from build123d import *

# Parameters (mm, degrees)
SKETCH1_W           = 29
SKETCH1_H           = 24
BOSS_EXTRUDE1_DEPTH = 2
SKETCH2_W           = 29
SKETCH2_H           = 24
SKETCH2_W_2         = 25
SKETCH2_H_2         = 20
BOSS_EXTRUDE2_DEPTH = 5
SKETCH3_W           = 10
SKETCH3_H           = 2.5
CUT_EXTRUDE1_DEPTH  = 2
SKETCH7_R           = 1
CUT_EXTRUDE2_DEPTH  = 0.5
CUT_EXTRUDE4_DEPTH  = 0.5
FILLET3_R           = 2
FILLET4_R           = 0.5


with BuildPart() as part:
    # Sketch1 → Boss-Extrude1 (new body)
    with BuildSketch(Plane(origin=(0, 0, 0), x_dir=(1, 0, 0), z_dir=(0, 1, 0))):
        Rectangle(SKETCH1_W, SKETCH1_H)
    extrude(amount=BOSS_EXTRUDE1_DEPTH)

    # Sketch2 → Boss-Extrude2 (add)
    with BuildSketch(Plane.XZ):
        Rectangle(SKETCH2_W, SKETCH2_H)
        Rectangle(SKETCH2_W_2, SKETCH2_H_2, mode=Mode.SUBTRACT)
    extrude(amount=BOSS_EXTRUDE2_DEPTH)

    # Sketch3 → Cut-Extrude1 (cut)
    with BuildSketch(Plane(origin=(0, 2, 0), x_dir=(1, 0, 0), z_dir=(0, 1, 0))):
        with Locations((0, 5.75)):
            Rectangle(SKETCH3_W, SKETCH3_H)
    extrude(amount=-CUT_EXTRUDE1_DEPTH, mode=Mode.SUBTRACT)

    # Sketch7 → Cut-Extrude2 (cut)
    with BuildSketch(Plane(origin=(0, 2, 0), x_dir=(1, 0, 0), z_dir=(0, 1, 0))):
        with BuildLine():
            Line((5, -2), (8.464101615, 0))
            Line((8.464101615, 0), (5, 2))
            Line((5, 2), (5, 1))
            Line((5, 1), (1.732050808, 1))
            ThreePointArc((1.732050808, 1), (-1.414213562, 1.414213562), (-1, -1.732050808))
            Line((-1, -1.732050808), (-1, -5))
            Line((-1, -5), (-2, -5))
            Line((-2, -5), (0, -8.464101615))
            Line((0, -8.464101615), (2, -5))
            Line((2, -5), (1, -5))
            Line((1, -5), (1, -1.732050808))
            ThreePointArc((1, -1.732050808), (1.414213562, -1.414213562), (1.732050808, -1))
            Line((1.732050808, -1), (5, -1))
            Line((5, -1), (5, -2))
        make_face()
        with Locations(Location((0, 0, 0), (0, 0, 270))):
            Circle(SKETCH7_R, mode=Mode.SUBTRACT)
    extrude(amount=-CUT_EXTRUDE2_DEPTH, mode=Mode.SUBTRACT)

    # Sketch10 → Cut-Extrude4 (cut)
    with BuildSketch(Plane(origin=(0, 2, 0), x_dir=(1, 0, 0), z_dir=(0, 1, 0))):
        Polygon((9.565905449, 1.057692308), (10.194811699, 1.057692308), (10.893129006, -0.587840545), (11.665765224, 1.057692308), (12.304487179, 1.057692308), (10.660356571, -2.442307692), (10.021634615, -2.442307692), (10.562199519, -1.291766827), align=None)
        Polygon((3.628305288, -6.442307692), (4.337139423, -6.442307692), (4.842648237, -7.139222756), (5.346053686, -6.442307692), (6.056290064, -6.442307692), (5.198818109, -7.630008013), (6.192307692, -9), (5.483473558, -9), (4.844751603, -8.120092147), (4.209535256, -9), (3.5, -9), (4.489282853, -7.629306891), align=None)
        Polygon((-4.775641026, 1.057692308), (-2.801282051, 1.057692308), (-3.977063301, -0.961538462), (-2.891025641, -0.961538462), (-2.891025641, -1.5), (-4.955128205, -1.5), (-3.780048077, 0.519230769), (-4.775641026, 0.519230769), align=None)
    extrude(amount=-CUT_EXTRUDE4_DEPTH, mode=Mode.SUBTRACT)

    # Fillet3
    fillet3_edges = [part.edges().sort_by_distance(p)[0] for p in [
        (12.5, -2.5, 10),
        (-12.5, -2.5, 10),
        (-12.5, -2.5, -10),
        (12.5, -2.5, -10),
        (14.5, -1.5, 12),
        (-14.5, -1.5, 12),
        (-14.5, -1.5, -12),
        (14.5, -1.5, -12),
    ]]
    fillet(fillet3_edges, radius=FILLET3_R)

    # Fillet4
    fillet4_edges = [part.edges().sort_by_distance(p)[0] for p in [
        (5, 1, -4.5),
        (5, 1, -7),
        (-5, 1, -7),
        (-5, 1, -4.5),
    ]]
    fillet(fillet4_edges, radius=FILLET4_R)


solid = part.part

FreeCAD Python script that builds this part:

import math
import FreeCAD as App
import Part
import Sketcher
Q = App.Units.Quantity


def edges_at(feature, points):
    """Names of the edges that pass closest to the given points."""
    edges = feature.Shape.Edges
    near = lambda p: min(range(len(edges)), key=lambda i: edges[i].distToShape(Part.Vertex(*p))[0])
    return sorted({f"Edge{near(p) + 1}" for p in points})


def add_polygon(sketch, points):
    """Adds a closed chain of lines whose ends are joined by coincident constraints."""
    first, n = sketch.GeometryCount, len(points)
    for a, b in zip(points, points[1:] + points[:1]):
        sketch.addGeometry(Part.LineSegment(App.Vector(*a, 0), App.Vector(*b, 0)), False)
    for i in range(n):
        sketch.addConstraint(Sketcher.Constraint("Coincident", first + i, 2, first + (i + 1) % n, 1))

doc = App.newDocument("Part")
body = doc.addObject("PartDesign::Body", "Body")

sketch1 = body.newObject("Sketcher::SketchObject", "Sketch")
sketch1.AttachmentSupport = (doc.getObject("XZ_Plane"), [""])
sketch1.MapMode = "FlatFace"
add_polygon(sketch1, [(-14.5, -12), (-14.5, 12), (14.5, 12), (14.5, -12)])
sketch1.addConstraint([
    Sketcher.Constraint("Vertical", 0),
    Sketcher.Constraint("Horizontal", 1),
    Sketcher.Constraint("Vertical", 2),
    Sketcher.Constraint("Horizontal", 3),
    Sketcher.Constraint("Symmetric", 0, 2, 2, 2, -1, 1),
    Sketcher.Constraint("DistanceX", 1, 1, 1, 2, Q("29 mm")),
    Sketcher.Constraint("DistanceY", 0, 1, 0, 2, Q("24 mm")),
])
pad1 = body.newObject("PartDesign::Pad", "Pad")
pad1.Profile = sketch1
pad1.Length = 2
pad1.Reversed = True

sketch2 = body.newObject("Sketcher::SketchObject", "Sketch001")
sketch2.AttachmentSupport = (doc.getObject("XZ_Plane"), [""])
sketch2.MapMode = "FlatFace"
add_polygon(sketch2, [(-14.5, 12), (-14.5, -12), (14.5, -12), (14.5, 12)])
add_polygon(sketch2, [(12.5, -10), (-12.5, -10), (-12.5, 10), (12.5, 10)])
sketch2.addConstraint([
    Sketcher.Constraint("Vertical", 0),
    Sketcher.Constraint("Horizontal", 1),
    Sketcher.Constraint("Vertical", 2),
    Sketcher.Constraint("Horizontal", 3),
    Sketcher.Constraint("Horizontal", 4),
    Sketcher.Constraint("Vertical", 5),
    Sketcher.Constraint("Horizontal", 6),
    Sketcher.Constraint("Vertical", 7),
    Sketcher.Constraint("Symmetric", 0, 2, 2, 2, -1, 1),
    Sketcher.Constraint("Symmetric", 4, 2, 6, 2, -1, 1),
    Sketcher.Constraint("DistanceX", 1, 1, 1, 2, Q("29 mm")),
    Sketcher.Constraint("DistanceX", 4, 2, 4, 1, Q("25 mm")),
    Sketcher.Constraint("DistanceY", 0, 2, 0, 1, Q("24 mm")),
    Sketcher.Constraint("DistanceY", 5, 1, 5, 2, Q("20 mm")),
])
pad2 = body.newObject("PartDesign::Pad", "Pad001")
pad2.Profile = sketch2
pad2.Length = 5

sketch3 = body.newObject("Sketcher::SketchObject", "Sketch002")
sketch3.AttachmentSupport = (doc.getObject("XZ_Plane"), [""])
sketch3.MapMode = "FlatFace"
sketch3.AttachmentOffset = App.Placement(App.Vector(0, 0, -2), App.Rotation())
add_polygon(sketch3, [(-5, -7), (-5, -4.5), (5, -4.5), (5, -7)])
sketch3.addConstraint([
    Sketcher.Constraint("Vertical", 0),
    Sketcher.Constraint("Horizontal", 1),
    Sketcher.Constraint("Vertical", 2),
    Sketcher.Constraint("Horizontal", 3),
    Sketcher.Constraint("DistanceX", 1, 1, 1, 2, Q("10 mm")),
    Sketcher.Constraint("DistanceY", 0, 1, 0, 2, Q("2.5 mm")),
    Sketcher.Constraint("DistanceX", 0, 2, -1, 1, Q("5 mm")),
    Sketcher.Constraint("DistanceY", 2, 2, -1, 1, Q("7 mm")),
])
pocket1 = body.newObject("PartDesign::Pocket", "Pocket")
pocket1.Profile = sketch3
pocket1.Length = 2
pocket1.Reversed = True

sketch4 = body.newObject("Sketcher::SketchObject", "Sketch003")
sketch4.AttachmentSupport = (doc.getObject("XZ_Plane"), [""])
sketch4.MapMode = "FlatFace"
sketch4.AttachmentOffset = App.Placement(App.Vector(0, 0, -2), App.Rotation())
sketch4.addGeometry([
    Part.LineSegment(App.Vector(5, 2, 0), App.Vector(8.464102, 0, 0)),
    Part.LineSegment(App.Vector(8.464102, 0, 0), App.Vector(5, -2, 0)),
    Part.LineSegment(App.Vector(5, -2, 0), App.Vector(5, -1, 0)),
    Part.LineSegment(App.Vector(5, -1, 0), App.Vector(1.732051, -1, 0)),
    Part.ArcOfCircle(Part.Circle(App.Vector(0, 0, 0), App.Vector(0, 0, 1), 2), math.radians(120), math.radians(330)),
    Part.LineSegment(App.Vector(-1, 1.732051, 0), App.Vector(-1, 5, 0)),
    Part.LineSegment(App.Vector(-1, 5, 0), App.Vector(-2, 5, 0)),
    Part.LineSegment(App.Vector(-2, 5, 0), App.Vector(0, 8.464102, 0)),
    Part.LineSegment(App.Vector(0, 8.464102, 0), App.Vector(2, 5, 0)),
    Part.LineSegment(App.Vector(2, 5, 0), App.Vector(1, 5, 0)),
    Part.LineSegment(App.Vector(1, 5, 0), App.Vector(1, 1.732051, 0)),
    Part.ArcOfCircle(Part.Circle(App.Vector(0, 0, 0), App.Vector(0, 0, 1), 2), math.radians(30), math.radians(60)),
    Part.LineSegment(App.Vector(1.732051, 1, 0), App.Vector(5, 1, 0)),
    Part.LineSegment(App.Vector(5, 1, 0), App.Vector(5, 2, 0)),
    Part.Circle(App.Vector(0, 0, 0), App.Vector(0, 0, 1), 1),
], False)
sketch4.addConstraint([
    Sketcher.Constraint("Coincident", 0, 2, 1, 1),
    Sketcher.Constraint("Coincident", 1, 2, 2, 1),
    Sketcher.Constraint("Coincident", 2, 2, 3, 1),
    Sketcher.Constraint("Coincident", 3, 2, 4, 2),
    Sketcher.Constraint("Coincident", 4, 1, 5, 1),
    Sketcher.Constraint("Coincident", 5, 2, 6, 1),
    Sketcher.Constraint("Coincident", 6, 2, 7, 1),
    Sketcher.Constraint("Coincident", 7, 2, 8, 1),
    Sketcher.Constraint("Coincident", 8, 2, 9, 1),
    Sketcher.Constraint("Coincident", 9, 2, 10, 1),
    Sketcher.Constraint("Coincident", 10, 2, 11, 2),
    Sketcher.Constraint("Coincident", 11, 1, 12, 1),
    Sketcher.Constraint("Coincident", 12, 2, 13, 1),
    Sketcher.Constraint("Coincident", 13, 2, 0, 1),
    Sketcher.Constraint("Vertical", 2),
    Sketcher.Constraint("Horizontal", 3),
    Sketcher.Constraint("Vertical", 5),
    Sketcher.Constraint("Horizontal", 6),
    Sketcher.Constraint("Horizontal", 9),
    Sketcher.Constraint("Vertical", 10),
    Sketcher.Constraint("Horizontal", 12),
    Sketcher.Constraint("Vertical", 13),
    Sketcher.Constraint("Coincident", 4, 3, -1, 1),
    Sketcher.Constraint("Coincident", 11, 3, -1, 1),
    Sketcher.Constraint("Coincident", 14, 3, -1, 1),
    Sketcher.Constraint("Equal", 4, 11),
    Sketcher.Constraint("Symmetric", 6, 2, 8, 2, -2),
    Sketcher.Constraint("Symmetric", 2, 2, 12, 2, -1),
    Sketcher.Constraint("PointOnObject", 0, 2, -1),
    Sketcher.Constraint("PointOnObject", 7, 2, -2),
    Sketcher.Constraint("Perpendicular", 0, 7),
    Sketcher.Constraint("Perpendicular", 1, 8),
    Sketcher.Constraint("Horizontal", 4, 1, 10, 2),
    Sketcher.Constraint("Equal", 9, 2),
    Sketcher.Constraint("Equal", 12, 5),
    Sketcher.Constraint("Equal", 1, 7),
    Sketcher.Constraint("Diameter", 14, Q("2 mm")),
    Sketcher.Constraint("Radius", 4, Q("2 mm")),
    Sketcher.Constraint("DistanceX", 6, 2, 6, 1, Q("1 mm")),
    Sketcher.Constraint("Angle", 0, Q("-30 deg")),
    Sketcher.Constraint("Distance", 0, Q("4 mm")),
    Sketcher.Constraint("DistanceX", -1, 1, 1, 2, Q("5 mm")),
])
pocket2 = body.newObject("PartDesign::Pocket", "Pocket001")
pocket2.Profile = sketch4
pocket2.Length = 0.5
pocket2.Reversed = True

sketch5 = body.newObject("Sketcher::SketchObject", "Sketch004")
sketch5.AttachmentSupport = (doc.getObject("XZ_Plane"), [""])
sketch5.MapMode = "FlatFace"
sketch5.AttachmentOffset = App.Placement(App.Vector(0, 0, -2), App.Rotation())
add_polygon(sketch5, [(10.194812, -1.057692), (9.565905, -1.057692), (10.5622, 1.291767), (10.021635, 2.442308), (10.660357, 2.442308), (12.304487, -1.057692), (11.665765, -1.057692), (10.893129, 0.587841)])
add_polygon(sketch5, [(4.337139, 6.442308), (3.628305, 6.442308), (4.489283, 7.629307), (3.5, 9), (4.209535, 9), (4.844752, 8.120092), (5.483474, 9), (6.192308, 9), (5.198818, 7.630008), (6.05629, 6.442308), (5.346054, 6.442308), (4.842648, 7.139223)])
add_polygon(sketch5, [(-2.801282, -1.057692), (-4.775641, -1.057692), (-4.775641, -0.519231), (-3.780048, -0.519231), (-4.955128, 1.5), (-2.891026, 1.5), (-2.891026, 0.961538), (-3.977063, 0.961538)])
sketch5.addConstraint([
    Sketcher.Constraint("Horizontal", 0),
    Sketcher.Constraint("Horizontal", 3),
    Sketcher.Constraint("Horizontal", 5),
    Sketcher.Constraint("Horizontal", 8),
    Sketcher.Constraint("Horizontal", 11),
    Sketcher.Constraint("Horizontal", 14),
    Sketcher.Constraint("Horizontal", 17),
    Sketcher.Constraint("Horizontal", 20),
    Sketcher.Constraint("Vertical", 21),
    Sketcher.Constraint("Horizontal", 22),
    Sketcher.Constraint("Horizontal", 24),
    Sketcher.Constraint("Vertical", 25),
    Sketcher.Constraint("Horizontal", 26),
    Sketcher.Constraint("Horizontal", 0, 2, 4, 2),
    Sketcher.Constraint("Horizontal", 11, 2, 13, 2),
    Sketcher.Constraint("Horizontal", 8, 2, 16, 2),
    Sketcher.Constraint("Horizontal", 7, 2, 20, 2),
    Sketcher.Constraint("Equal", 3, 5),
    Sketcher.Constraint("Equal", 8, 14),
    Sketcher.Constraint("Equal", 21, 25),
    Sketcher.Constraint("DistanceY", -1, 1, 10, 2, Q("9 mm")),
    Sketcher.Constraint("DistanceY", 2, 2, 8, 2, Q("4 mm")),
    Sketcher.Constraint("DistanceX", -1, 1, 10, 2, Q("3.5 mm")),
    Sketcher.Constraint("DistanceY", -1, 1, 23, 2, Q("1.5 mm")),
    Sketcher.Constraint("DistanceY", 0, 2, 2, 2, Q("3.5 mm")),
    Sketcher.Constraint("DistanceY", 8, 2, 9, 2, Q("1.186999 mm")),
    Sketcher.Constraint("DistanceX", 3, 1, 3, 2, Q("0.638722 mm")),
    Sketcher.Constraint("DistanceX", 20, 2, 20, 1, Q("1.974359 mm")),
    Sketcher.Constraint("DistanceY", 21, 1, 21, 2, Q("0.538462 mm")),
    Sketcher.Constraint("DistanceX", -1, 1, 1, 2, Q("10.5622 mm")),
    Sketcher.Constraint("DistanceX", 8, 2, 0, 2, Q("5.9376 mm")),
    Sketcher.Constraint("DistanceX", 11, 2, 2, 2, Q("5.812099 mm")),
    Sketcher.Constraint("DistanceY", 9, 2, 15, 2, Q("0.000701 mm")),
    Sketcher.Constraint("DistanceX", 22, 2, 17, 2, Q("9.126102 mm")),
    Sketcher.Constraint("Distance", 1, Q("2.551972 mm")),
    Sketcher.Constraint("Distance", 10, Q("1.690408 mm")),
    Sketcher.Constraint("Distance", 13, Q("1.087292 mm")),
    Sketcher.Constraint("Distance", 23, Q("2.336259 mm")),
    Sketcher.Constraint("Distance", 27, Q("2.336612 mm")),
    Sketcher.Constraint("DistanceX", 0, 2, 0, 1, Q("0.628906 mm")),
    Sketcher.Constraint("DistanceX", 8, 2, 8, 1, Q("0.708834 mm")),
    Sketcher.Constraint("DistanceX", 11, 1, 11, 2, Q("0.709535 mm")),
    Sketcher.Constraint("DistanceX", 17, 2, 17, 1, Q("0.710236 mm")),
    Sketcher.Constraint("DistanceX", 22, 1, 22, 2, Q("0.995593 mm")),
    Sketcher.Constraint("DistanceX", 24, 1, 24, 2, Q("2.064103 mm")),
    Sketcher.Constraint("DistanceX", -1, 1, 6, 2, Q("10.893129 mm")),
    Sketcher.Constraint("DistanceY", -1, 1, 6, 2, Q("0.587841 mm")),
    Sketcher.Constraint("DistanceX", -1, 1, 7, 2, Q("10.194812 mm")),
    Sketcher.Constraint("DistanceX", -1, 1, 12, 2, Q("4.844752 mm")),
    Sketcher.Constraint("DistanceX", -1, 1, 15, 2, Q("5.198818 mm")),
    Sketcher.Constraint("DistanceY", -1, 1, 15, 2, Q("7.630008 mm")),
    Sketcher.Constraint("DistanceX", -1, 1, 16, 2, Q("6.05629 mm")),
    Sketcher.Constraint("DistanceX", -1, 1, 18, 2, Q("4.842648 mm")),
    Sketcher.Constraint("DistanceX", 0, 2, 4, 2, Q("2.738582 mm")),
    Sketcher.Constraint("DistanceX", 12, 2, 13, 2, Q("0.638722 mm")),
    Sketcher.Constraint("DistanceY", 18, 2, 12, 2, Q("0.980869 mm")),
])
pocket3 = body.newObject("PartDesign::Pocket", "Pocket002")
pocket3.Profile = sketch5
pocket3.Length = 0.5
pocket3.Reversed = True
doc.recompute()

fillet = body.newObject("PartDesign::Fillet", "Fillet")
fillet.Base = (pocket3, edges_at(pocket3, [
    (12.5, -2.5, 10),
    (-12.5, -2.5, 10),
    (-12.5, -2.5, -10),
    (12.5, -2.5, -10),
    (14.5, -1.5, 12),
    (-14.5, -1.5, 12),
    (-14.5, -1.5, -12),
    (14.5, -1.5, -12),
]))
fillet.Radius = 2
doc.recompute()

fillet2 = body.newObject("PartDesign::Fillet", "Fillet001")
fillet2.Base = (fillet, edges_at(fillet, [
    (5, 1, -4.5),
    (5, 1, -7),
    (-5, 1, -7),
    (-5, 1, -4.5),
]))
fillet2.Radius = 0.5

doc.recompute()
